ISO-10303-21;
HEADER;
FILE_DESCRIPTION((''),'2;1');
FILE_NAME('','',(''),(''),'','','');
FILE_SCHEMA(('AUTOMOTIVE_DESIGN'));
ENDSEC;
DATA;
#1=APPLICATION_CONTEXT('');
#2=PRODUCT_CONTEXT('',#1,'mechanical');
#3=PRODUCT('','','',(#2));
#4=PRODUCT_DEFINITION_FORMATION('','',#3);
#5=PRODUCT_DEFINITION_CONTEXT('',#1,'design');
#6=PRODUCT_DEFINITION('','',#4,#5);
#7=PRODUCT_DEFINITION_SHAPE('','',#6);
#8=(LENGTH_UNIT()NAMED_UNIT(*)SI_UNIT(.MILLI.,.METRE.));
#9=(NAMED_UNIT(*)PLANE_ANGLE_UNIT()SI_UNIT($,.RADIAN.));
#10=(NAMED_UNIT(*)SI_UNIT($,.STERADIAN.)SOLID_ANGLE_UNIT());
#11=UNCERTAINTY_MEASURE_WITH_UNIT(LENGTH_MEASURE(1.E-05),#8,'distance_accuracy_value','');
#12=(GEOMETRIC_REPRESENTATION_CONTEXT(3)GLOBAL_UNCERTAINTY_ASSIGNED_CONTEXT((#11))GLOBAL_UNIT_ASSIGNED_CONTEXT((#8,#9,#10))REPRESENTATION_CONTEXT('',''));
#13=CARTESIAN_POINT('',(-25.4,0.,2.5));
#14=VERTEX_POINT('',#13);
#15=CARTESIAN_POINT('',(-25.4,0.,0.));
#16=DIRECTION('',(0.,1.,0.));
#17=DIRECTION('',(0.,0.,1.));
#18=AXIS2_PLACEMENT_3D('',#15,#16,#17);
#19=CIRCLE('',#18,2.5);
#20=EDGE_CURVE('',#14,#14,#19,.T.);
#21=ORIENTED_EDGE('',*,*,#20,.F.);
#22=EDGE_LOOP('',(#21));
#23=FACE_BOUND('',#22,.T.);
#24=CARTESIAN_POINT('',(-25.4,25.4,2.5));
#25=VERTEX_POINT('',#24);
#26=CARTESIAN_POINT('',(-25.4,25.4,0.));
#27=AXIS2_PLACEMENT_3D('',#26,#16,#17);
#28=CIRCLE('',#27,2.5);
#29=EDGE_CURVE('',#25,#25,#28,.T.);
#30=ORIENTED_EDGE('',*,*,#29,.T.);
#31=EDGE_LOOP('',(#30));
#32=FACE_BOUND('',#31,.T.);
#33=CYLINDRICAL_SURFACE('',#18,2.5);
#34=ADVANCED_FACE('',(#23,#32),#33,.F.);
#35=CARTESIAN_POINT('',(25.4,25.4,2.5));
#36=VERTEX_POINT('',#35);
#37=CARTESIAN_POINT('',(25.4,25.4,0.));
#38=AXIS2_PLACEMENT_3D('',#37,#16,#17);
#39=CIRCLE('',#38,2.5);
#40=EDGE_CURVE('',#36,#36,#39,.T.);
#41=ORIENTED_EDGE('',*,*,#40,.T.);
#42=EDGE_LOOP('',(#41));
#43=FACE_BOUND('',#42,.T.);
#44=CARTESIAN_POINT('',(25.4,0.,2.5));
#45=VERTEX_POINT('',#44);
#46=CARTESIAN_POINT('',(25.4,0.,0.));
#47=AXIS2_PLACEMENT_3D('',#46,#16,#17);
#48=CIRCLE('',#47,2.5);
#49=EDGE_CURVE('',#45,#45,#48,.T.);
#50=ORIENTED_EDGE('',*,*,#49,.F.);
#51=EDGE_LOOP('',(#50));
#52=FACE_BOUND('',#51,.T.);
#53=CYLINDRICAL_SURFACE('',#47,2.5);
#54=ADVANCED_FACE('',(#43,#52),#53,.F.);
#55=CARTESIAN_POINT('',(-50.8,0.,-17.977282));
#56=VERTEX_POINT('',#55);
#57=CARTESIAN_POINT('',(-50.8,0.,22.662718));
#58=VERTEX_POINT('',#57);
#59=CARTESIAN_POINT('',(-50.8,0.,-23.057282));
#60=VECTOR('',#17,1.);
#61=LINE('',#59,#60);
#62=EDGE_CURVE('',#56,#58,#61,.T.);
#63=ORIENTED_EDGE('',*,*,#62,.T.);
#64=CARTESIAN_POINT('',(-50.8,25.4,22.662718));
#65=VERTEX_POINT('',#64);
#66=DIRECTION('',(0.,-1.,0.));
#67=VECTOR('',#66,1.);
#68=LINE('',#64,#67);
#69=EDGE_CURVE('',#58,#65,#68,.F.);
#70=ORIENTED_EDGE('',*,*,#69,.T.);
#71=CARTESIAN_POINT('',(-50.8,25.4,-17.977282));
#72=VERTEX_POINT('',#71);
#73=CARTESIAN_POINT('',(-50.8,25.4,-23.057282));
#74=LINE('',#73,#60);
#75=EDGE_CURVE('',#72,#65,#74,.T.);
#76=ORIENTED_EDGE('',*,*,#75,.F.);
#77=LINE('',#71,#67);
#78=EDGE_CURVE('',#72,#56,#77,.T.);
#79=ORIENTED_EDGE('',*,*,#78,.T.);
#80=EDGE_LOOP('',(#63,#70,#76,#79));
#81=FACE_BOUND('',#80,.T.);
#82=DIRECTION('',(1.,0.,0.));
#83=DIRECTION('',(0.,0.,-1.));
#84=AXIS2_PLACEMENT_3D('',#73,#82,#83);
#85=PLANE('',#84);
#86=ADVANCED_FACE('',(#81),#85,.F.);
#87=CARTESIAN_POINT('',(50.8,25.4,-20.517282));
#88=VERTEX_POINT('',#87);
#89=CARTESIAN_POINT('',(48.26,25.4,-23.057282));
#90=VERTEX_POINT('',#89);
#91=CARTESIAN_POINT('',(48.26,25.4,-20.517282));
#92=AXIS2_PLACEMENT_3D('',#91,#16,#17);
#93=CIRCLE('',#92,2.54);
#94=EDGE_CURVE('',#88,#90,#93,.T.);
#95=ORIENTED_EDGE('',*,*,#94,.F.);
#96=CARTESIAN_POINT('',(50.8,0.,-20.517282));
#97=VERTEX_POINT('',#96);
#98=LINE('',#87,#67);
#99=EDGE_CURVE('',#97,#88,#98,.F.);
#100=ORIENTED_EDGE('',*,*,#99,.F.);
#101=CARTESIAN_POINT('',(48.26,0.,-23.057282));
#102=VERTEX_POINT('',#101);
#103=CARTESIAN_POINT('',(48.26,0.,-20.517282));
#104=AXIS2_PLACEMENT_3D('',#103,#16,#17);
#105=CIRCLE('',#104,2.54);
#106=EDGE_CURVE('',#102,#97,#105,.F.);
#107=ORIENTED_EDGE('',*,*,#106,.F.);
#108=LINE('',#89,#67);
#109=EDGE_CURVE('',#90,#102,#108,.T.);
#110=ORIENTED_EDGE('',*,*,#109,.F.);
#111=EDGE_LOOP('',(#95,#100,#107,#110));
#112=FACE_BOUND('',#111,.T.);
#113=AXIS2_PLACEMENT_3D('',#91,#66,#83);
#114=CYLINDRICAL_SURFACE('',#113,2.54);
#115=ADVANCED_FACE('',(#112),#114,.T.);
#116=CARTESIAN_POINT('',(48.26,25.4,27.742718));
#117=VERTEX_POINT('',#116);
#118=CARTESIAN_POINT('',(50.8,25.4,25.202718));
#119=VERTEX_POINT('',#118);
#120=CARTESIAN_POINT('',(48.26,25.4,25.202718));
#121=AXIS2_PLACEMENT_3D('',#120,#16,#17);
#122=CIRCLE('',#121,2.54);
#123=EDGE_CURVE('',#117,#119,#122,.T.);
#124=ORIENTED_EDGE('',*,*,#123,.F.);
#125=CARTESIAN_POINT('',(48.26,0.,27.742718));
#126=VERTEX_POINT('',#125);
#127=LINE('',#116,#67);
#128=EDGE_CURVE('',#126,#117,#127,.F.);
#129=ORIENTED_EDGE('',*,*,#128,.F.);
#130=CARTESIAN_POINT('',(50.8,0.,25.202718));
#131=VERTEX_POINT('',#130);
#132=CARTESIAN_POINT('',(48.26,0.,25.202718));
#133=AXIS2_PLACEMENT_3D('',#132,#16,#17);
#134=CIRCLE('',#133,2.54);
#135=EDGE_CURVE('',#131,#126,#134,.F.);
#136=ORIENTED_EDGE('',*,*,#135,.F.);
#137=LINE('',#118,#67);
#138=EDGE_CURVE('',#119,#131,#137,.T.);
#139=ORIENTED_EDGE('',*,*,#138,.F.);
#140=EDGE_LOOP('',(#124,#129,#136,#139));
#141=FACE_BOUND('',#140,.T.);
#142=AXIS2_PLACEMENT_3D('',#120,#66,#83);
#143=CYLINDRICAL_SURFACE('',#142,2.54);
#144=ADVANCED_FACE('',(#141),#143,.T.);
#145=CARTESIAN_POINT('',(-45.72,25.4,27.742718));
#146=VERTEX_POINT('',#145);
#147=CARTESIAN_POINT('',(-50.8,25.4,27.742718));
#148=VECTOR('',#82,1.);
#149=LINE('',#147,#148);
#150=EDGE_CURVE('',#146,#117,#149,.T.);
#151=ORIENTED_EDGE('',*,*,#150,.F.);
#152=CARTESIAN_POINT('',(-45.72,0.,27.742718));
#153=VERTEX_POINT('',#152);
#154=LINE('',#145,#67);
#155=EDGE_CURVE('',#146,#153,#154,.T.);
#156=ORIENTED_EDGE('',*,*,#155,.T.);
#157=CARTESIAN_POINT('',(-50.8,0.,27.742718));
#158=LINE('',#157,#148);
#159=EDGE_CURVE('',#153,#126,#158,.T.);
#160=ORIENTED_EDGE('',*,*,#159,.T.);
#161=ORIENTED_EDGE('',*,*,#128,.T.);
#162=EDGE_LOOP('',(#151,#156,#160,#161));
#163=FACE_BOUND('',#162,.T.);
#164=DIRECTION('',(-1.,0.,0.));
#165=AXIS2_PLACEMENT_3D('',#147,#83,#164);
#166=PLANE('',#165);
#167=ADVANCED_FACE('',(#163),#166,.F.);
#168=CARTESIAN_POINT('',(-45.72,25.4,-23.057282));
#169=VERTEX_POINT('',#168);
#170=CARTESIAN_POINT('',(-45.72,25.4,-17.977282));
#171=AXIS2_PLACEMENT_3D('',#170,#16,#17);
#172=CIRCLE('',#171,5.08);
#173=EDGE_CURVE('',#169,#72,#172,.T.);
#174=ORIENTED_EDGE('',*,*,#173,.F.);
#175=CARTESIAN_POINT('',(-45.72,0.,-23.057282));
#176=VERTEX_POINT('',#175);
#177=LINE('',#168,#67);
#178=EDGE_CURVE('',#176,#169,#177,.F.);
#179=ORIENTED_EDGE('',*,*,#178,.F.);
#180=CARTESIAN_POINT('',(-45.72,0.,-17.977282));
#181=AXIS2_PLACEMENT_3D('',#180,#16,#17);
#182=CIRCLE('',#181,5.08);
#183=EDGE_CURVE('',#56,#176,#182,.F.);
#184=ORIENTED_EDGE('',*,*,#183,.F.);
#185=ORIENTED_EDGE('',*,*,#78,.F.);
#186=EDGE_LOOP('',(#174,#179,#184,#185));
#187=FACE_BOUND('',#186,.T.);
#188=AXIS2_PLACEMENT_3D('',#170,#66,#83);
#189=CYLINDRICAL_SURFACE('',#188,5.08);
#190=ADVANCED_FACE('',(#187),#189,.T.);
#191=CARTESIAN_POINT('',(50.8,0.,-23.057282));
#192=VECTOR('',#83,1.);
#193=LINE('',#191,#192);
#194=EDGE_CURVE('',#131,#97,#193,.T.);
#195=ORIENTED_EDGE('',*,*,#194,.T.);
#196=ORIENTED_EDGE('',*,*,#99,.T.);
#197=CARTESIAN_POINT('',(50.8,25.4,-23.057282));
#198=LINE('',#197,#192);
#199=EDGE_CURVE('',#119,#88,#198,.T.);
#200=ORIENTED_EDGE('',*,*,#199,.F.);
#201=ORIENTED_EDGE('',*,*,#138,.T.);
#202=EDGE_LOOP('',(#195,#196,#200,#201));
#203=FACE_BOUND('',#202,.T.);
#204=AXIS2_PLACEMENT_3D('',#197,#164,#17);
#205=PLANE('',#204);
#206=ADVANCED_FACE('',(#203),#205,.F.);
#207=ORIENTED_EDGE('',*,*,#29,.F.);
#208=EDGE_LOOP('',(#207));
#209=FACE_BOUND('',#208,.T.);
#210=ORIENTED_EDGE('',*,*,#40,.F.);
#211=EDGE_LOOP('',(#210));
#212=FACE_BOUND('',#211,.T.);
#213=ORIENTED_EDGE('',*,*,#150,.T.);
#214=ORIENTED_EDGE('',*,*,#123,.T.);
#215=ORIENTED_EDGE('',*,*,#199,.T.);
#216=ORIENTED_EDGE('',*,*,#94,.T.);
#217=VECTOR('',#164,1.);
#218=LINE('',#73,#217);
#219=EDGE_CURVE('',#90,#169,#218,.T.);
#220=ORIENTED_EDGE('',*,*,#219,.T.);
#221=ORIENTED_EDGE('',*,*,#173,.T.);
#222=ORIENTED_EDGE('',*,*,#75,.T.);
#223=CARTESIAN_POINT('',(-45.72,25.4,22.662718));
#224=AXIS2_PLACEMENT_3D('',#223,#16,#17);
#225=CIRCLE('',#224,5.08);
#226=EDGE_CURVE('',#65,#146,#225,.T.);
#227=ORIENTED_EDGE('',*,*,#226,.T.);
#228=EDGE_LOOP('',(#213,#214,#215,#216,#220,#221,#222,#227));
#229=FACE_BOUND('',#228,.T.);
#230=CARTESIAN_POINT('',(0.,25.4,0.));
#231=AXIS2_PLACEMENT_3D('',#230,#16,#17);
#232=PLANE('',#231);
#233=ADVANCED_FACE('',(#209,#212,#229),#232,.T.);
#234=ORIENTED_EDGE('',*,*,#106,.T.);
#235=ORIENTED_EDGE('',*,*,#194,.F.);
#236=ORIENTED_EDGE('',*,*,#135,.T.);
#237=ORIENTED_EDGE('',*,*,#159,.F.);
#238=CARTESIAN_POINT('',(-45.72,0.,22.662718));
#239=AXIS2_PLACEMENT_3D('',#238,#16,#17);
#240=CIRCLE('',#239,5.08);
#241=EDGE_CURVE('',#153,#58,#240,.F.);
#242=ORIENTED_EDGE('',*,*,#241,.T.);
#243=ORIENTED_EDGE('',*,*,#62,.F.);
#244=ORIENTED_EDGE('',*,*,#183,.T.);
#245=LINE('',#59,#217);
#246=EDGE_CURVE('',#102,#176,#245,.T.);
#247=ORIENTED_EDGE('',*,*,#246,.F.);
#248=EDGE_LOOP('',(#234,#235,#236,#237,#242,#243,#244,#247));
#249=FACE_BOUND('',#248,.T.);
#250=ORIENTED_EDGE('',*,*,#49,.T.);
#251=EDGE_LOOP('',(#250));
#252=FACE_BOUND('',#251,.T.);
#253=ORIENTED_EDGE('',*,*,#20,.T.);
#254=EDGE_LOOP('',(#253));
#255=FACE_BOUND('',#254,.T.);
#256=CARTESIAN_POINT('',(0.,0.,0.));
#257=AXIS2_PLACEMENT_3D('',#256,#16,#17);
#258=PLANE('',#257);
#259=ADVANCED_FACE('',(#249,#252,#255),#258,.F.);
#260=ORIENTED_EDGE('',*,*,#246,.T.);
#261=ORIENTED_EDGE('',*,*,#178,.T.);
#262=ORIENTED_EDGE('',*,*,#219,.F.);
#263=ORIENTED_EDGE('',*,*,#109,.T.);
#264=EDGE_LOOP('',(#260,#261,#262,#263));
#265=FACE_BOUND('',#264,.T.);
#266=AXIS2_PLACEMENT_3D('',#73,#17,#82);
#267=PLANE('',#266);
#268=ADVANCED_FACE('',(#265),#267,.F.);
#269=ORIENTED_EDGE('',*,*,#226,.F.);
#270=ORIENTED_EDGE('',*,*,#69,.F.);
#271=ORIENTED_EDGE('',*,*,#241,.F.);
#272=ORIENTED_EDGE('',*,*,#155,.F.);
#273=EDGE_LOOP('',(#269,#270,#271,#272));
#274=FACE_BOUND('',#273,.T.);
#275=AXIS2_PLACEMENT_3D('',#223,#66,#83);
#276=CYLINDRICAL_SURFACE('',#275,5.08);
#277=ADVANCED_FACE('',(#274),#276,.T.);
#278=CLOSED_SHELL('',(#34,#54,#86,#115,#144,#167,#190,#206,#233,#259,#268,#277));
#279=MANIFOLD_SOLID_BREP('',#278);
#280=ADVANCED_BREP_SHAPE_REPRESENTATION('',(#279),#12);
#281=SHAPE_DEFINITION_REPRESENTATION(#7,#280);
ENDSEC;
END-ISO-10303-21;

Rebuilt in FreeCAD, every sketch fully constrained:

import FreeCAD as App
import Part
import Sketcher
from FreeCAD import Vector
Q = App.Units.Quantity


def edges_at(feature, points):
    """Names of the edges that pass closest to the given points."""
    edges = feature.Shape.Edges
    near = lambda p: min(range(len(edges)), key=lambda i: edges[i].distToShape(Part.Vertex(*p))[0])
    return sorted({f"Edge{near(p) + 1}" for p in points})


def add_polygon(sketch, points):
    """Adds a closed chain of lines whose ends are joined by coincident constraints."""
    first, n = sketch.GeometryCount, len(points)
    for a, b in zip(points, points[1:] + points[:1]):
        sketch.addGeometry(Part.LineSegment(App.Vector(*a, 0), App.Vector(*b, 0)), False)
    for i in range(n):
        sketch.addConstraint(Sketcher.Constraint("Coincident", first + i, 2, first + (i + 1) % n, 1))

doc = App.newDocument("Part")
params = doc.addObject("Spreadsheet::Sheet", "Params")
for row, (alias, value) in enumerate([
    ("sketch1_width", "4 in"),
    ("sketch1_height", "2 in"),
    ("pad1_length", "1 in"),
    ("fillet_radius", "0.2 in"),
    ("fillet2_radius", "0.1 in"),
    ("pocket1_length", "1 in"),
], start=1):
    params.set(f"A{row}", alias)
    params.set(f"B{row}", "=" + value)
    params.setAlias(f"B{row}", alias)

body = doc.addObject("PartDesign::Body", "Body")

# Sketch on XZ plane
sketch1 = body.newObject("Sketcher::SketchObject", "Sketch")
sketch1.AttachmentSupport = (doc.getObject("XZ_Plane"), [""])
sketch1.MapMode = "FlatFace"
add_polygon(sketch1, [(-50.8, -23.057282), (-50.8, 27.742718), (50.8, 27.742718), (50.8, -23.057282)])  # lines 0-3
sketch1.addConstraint(Sketcher.Constraint("Vertical", 0))
sketch1.addConstraint(Sketcher.Constraint("Horizontal", 1))
sketch1.addConstraint(Sketcher.Constraint("Vertical", 2))
sketch1.addConstraint(Sketcher.Constraint("Horizontal", 3))
sketch1.addConstraint(Sketcher.Constraint("DistanceX", 1, 1, 1, 2, Q("4 in")))
sketch1.addConstraint(Sketcher.Constraint("DistanceY", 0, 1, 0, 2, Q("2 in")))
sketch1.addConstraint(Sketcher.Constraint("DistanceX", 0, 2, -1, 1, Q("2 in")))
sketch1.addConstraint(Sketcher.Constraint("DistanceY", -1, 1, 0, 2, 27.742718))
sketch1.setExpression("Constraints[8]", "Params.sketch1_width")
sketch1.setExpression("Constraints[9]", "Params.sketch1_height")
pad1 = body.newObject("PartDesign::Pad", "Pad")
pad1.Profile = sketch1
pad1.setExpression("Length", "Params.pad1_length")
pad1.Reversed = True
doc.recompute()

fillet = body.newObject("PartDesign::Fillet", "Fillet")
fillet.Base = (pad1, edges_at(pad1, [(-50.8, 12.7, -23.057), (-50.8, 12.7, 27.743)]))
fillet.setExpression("Radius", "Params.fillet_radius")
doc.recompute()

fillet2 = body.newObject("PartDesign::Fillet", "Fillet001")
fillet2.Base = (fillet, edges_at(fillet, [(50.8, 12.7, -23.057), (50.8, 12.7, 27.743)]))
fillet2.setExpression("Radius", "Params.fillet2_radius")

# Sketch on XZ plane
sketch2 = body.newObject("Sketcher::SketchObject", "Sketch001")
sketch2.AttachmentSupport = (doc.getObject("XZ_Plane"), [""])
sketch2.MapMode = "FlatFace"
sketch2.AttachmentOffset = App.Placement(Vector(0, 0, -1 * 25.4), App.Rotation())
sketch2.addGeometry(Part.Circle(Vector(-25.4, 0, 0), Vector(0, 0, 1), 2.5), False)
sketch2.addGeometry(Part.Circle(Vector(25.4, 0, 0), Vector(0, 0, 1), 2.5), False)
sketch2.addConstraint(Sketcher.Constraint("Equal", 0, 1))
sketch2.addConstraint(Sketcher.Constraint("Symmetric", 0, 3, 1, 3, -1, 1))
sketch2.addConstraint(Sketcher.Constraint("PointOnObject", 0, 3, -1))
sketch2.addConstraint(Sketcher.Constraint("DistanceX", 0, 3, -1, 1, Q("1 in")))
sketch2.addConstraint(Sketcher.Constraint("Diameter", 0, 5.0))
pocket1 = body.newObject("PartDesign::Pocket", "Pocket")
pocket1.Profile = sketch2
pocket1.setExpression("Length", "Params.pocket1_length")
pocket1.Reversed = True

doc.recompute()
